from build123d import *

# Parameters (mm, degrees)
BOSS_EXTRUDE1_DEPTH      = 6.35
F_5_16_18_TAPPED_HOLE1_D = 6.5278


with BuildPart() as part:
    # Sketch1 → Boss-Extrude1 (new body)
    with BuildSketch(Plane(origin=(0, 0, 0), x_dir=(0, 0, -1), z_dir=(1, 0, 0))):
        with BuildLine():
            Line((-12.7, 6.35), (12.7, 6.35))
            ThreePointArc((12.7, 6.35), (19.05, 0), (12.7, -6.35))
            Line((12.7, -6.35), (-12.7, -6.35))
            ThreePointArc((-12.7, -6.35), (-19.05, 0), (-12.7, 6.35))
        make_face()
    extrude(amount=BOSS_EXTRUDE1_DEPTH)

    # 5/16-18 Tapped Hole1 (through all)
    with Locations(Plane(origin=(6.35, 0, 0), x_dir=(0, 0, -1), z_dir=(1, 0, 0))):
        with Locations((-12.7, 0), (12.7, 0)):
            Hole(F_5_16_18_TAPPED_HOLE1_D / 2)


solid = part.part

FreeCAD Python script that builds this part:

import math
import FreeCAD as App
import Part
import Sketcher

V = App.Vector
Q = App.Units.Quantity

doc = App.newDocument("Part")
body = doc.addObject("PartDesign::Body", "Body")

# Sketch on YZ plane
sketch1 = doc.addObject("Sketcher::SketchObject", "Sketch")
body.addObject(sketch1)
sketch1.AttachmentSupport = (doc.YZ_Plane, [""])
sketch1.MapMode = "FlatFace"
sketch1.addGeometry([
    Part.LineSegment(V(6, -13, 0), V(6, 13, 0)),
    Part.ArcOfCircle(Part.Circle(V(0, 13, 0), V(0, 0, 1), 6), math.radians(0), math.radians(180)),
    Part.LineSegment(V(-6, 13, 0), V(-6, -13, 0)),
    Part.ArcOfCircle(Part.Circle(V(0, -13, 0), V(0, 0, 1), 6), math.radians(180), math.radians(360)),
], False)
sketch1.addConstraint([
    Sketcher.Constraint("Tangent", 0, 2, 1, 1),
    Sketcher.Constraint("Tangent", 1, 2, 2, 1),
    Sketcher.Constraint("Tangent", 2, 2, 3, 1),
    Sketcher.Constraint("Tangent", 3, 2, 0, 1),
    Sketcher.Constraint("Vertical", 0),
    Sketcher.Constraint("Vertical", 2),
    Sketcher.Constraint("Symmetric", 1, 3, 3, 3, -1, 1),
    Sketcher.Constraint("DistanceY", 0, 1, 0, 2, Q("1 in")),
    Sketcher.Constraint("Radius", 1, Q("0.25 in")),
])
pad1 = doc.addObject("PartDesign::Pad", "Pad")
body.addObject(pad1)
pad1.Profile = sketch1
pad1.Length = Q("0.25 in")

# Sketch on YZ plane
sketch2 = doc.addObject("Sketcher::SketchObject", "Sketch001")
body.addObject(sketch2)
sketch2.AttachmentSupport = (doc.YZ_Plane, [""])
sketch2.MapMode = "FlatFace"
sketch2.AttachmentOffset = App.Placement(V(0, 0, 0.25 * 25.4), App.Rotation())
sketch2.addGeometry([
    Part.Circle(V(0, 12.7, 0), V(0, 0, 1), 3.3),
    Part.Circle(V(0, -12.7, 0), V(0, 0, 1), 3.3),
], False)
sketch2.addConstraint([
    Sketcher.Constraint("Equal", 0, 1),
    Sketcher.Constraint("Symmetric", 0, 3, 1, 3, -1, 1),
    Sketcher.Constraint("PointOnObject", 0, 3, -2),
    Sketcher.Constraint("Diameter", 0, Q("0.257 in")),
    Sketcher.Constraint("DistanceY", 1, 3, 0, 3, Q("1 in")),
])
doc.recompute()
hole = doc.addObject("PartDesign::Hole", "Hole")
body.addObject(hole)
hole.Profile = sketch2
hole.ThreadType = "None"
hole.Diameter = Q("0.257 in")
hole.DepthType = "ThroughAll"

doc.recompute()
